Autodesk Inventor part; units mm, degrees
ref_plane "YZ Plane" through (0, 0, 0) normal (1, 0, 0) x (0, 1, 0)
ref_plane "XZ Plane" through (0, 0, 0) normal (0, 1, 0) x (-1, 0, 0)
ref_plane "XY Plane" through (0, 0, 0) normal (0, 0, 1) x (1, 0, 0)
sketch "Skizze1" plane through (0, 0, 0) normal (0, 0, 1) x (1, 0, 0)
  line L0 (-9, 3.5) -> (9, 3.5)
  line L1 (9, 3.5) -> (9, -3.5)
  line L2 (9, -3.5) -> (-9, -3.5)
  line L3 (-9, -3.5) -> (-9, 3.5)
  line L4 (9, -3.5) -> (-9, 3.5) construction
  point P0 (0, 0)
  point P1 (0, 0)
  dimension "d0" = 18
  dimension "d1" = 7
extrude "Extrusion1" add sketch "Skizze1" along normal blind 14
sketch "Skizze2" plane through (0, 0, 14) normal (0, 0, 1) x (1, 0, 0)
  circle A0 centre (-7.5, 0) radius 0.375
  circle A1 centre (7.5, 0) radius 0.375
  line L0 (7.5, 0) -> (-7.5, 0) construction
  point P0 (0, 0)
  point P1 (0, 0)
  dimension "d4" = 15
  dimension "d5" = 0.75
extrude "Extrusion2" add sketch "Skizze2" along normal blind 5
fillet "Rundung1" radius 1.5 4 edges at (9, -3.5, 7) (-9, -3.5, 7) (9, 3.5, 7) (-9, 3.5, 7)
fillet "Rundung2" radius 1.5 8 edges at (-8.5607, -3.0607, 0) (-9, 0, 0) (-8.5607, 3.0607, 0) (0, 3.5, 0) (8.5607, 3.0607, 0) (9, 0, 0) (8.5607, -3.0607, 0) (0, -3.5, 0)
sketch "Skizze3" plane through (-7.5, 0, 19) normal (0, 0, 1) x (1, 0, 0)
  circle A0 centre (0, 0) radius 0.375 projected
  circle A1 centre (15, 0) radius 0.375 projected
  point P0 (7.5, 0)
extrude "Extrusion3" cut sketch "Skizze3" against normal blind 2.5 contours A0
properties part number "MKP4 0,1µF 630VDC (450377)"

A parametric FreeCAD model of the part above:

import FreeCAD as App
import Part
import Sketcher
from FreeCAD import Vector


def edges_at(feature, points):
    """Names of the edges that pass closest to the given points."""
    edges = feature.Shape.Edges
    near = lambda p: min(range(len(edges)), key=lambda i: edges[i].distToShape(Part.Vertex(*p))[0])
    return sorted({f"Edge{near(p) + 1}" for p in points})


def add_polygon(sketch, points):
    """Adds a closed chain of lines whose ends are joined by coincident constraints."""
    first, n = sketch.GeometryCount, len(points)
    for a, b in zip(points, points[1:] + points[:1]):
        sketch.addGeometry(Part.LineSegment(App.Vector(*a, 0), App.Vector(*b, 0)), False)
    for i in range(n):
        sketch.addConstraint(Sketcher.Constraint("Coincident", first + i, 2, first + (i + 1) % n, 1))

doc = App.newDocument("Part")
params = doc.addObject("Spreadsheet::Sheet", "Params")
for row, (alias, value) in enumerate([
    ("sketch1_width", "18 mm"),
    ("sketch1_height", "7 mm"),
    ("pad1_length", "14 mm"),
    ("sketch2_diameter", "0.75 mm"),
    ("pad2_length", "5 mm"),
    ("fillet_radius", "1.5 mm"),
    ("fillet2_radius", "1.5 mm"),
    ("sketch3_diameter", "0.75 mm"),
    ("pocket1_length", "2.5 mm"),
], start=1):
    params.set(f"A{row}", alias)
    params.set(f"B{row}", "=" + value)
    params.setAlias(f"B{row}", alias)

body = doc.addObject("PartDesign::Body", "Body")

# Sketch on XY plane
sketch1 = body.newObject("Sketcher::SketchObject", "Sketch")
sketch1.AttachmentSupport = (doc.getObject("XY_Plane"), [""])
sketch1.MapMode = "FlatFace"
add_polygon(sketch1, [(9, 3.5), (-9, 3.5), (-9, -3.5), (9, -3.5)])  # lines 0-3
sketch1.addConstraint(Sketcher.Constraint("Horizontal", 0))
sketch1.addConstraint(Sketcher.Constraint("Vertical", 1))
sketch1.addConstraint(Sketcher.Constraint("Horizontal", 2))
sketch1.addConstraint(Sketcher.Constraint("Vertical", 3))
sketch1.addConstraint(Sketcher.Constraint("Symmetric", 0, 2, 2, 2, -1, 1))
sketch1.addConstraint(Sketcher.Constraint("DistanceX", 0, 2, 0, 1, 18.0))
sketch1.addConstraint(Sketcher.Constraint("DistanceY", 1, 2, 1, 1, 7.0))
sketch1.setExpression("Constraints[9]", "Params.sketch1_width")
sketch1.setExpression("Constraints[10]", "Params.sketch1_height")
pad1 = body.newObject("PartDesign::Pad", "Pad")
pad1.Profile = sketch1
pad1.setExpression("Length", "Params.pad1_length")

# Sketch on XY plane
sketch2 = body.newObject("Sketcher::SketchObject", "Sketch001")
sketch2.AttachmentSupport = (doc.getObject("XY_Plane"), [""])
sketch2.MapMode = "FlatFace"
sketch2.AttachmentOffset = App.Placement(Vector(0, 0, 14), App.Rotation())
sketch2.addGeometry(Part.Circle(Vector(-7.5, 0, 0), Vector(0, 0, 1), 0.375), False)
sketch2.addGeometry(Part.Circle(Vector(7.5, 0, 0), Vector(0, 0, 1), 0.375), False)
sketch2.addConstraint(Sketcher.Constraint("Equal", 0, 1))
sketch2.addConstraint(Sketcher.Constraint("Symmetric", 0, 3, 1, 3, -1, 1))
sketch2.addConstraint(Sketcher.Constraint("PointOnObject", 0, 3, -1))
sketch2.addConstraint(Sketcher.Constraint("Diameter", 0, 0.75))
sketch2.addConstraint(Sketcher.Constraint("DistanceX", 0, 3, 1, 3, 15.0))
sketch2.setExpression("Constraints[3]", "Params.sketch2_diameter")
pad2 = body.newObject("PartDesign::Pad", "Pad001")
pad2.Profile = sketch2
pad2.setExpression("Length", "Params.pad2_length")
doc.recompute()

fillet = body.newObject("PartDesign::Fillet", "Fillet")
fillet.Base = (pad2, edges_at(pad2, [
    (9, -3.5, 7),
    (-9, -3.5, 7),
    (9, 3.5, 7),
    (-9, 3.5, 7),
]))
fillet.setExpression("Radius", "Params.fillet_radius")
doc.recompute()

fillet2 = body.newObject("PartDesign::Fillet", "Fillet001")
fillet2.Base = (fillet, edges_at(fillet, [
    (-8.561, -3.061, 0),
    (-9, 0, 0),
    (-8.561, 3.061, 0),
    (0, 3.5, 0),
    (8.561, 3.061, 0),
    (9, 0, 0),
    (8.561, -3.061, 0),
    (0, -3.5, 0),
]))
fillet2.setExpression("Radius", "Params.fillet2_radius")

# Sketch on XY plane
sketch3 = body.newObject("Sketcher::SketchObject", "Sketch002")
sketch3.AttachmentSupport = (doc.getObject("XY_Plane"), [""])
sketch3.MapMode = "FlatFace"
sketch3.AttachmentOffset = App.Placement(Vector(0, 0, 19), App.Rotation())
sketch3.addGeometry(Part.Circle(Vector(-7.5, 0, 0), Vector(0, 0, 1), 0.375), False)
sketch3.addConstraint(Sketcher.Constraint("PointOnObject", 0, 3, -1))
sketch3.addConstraint(Sketcher.Constraint("Diameter", 0, 0.75))
sketch3.addConstraint(Sketcher.Constraint("DistanceX", 0, 3, -1, 1, 7.5))
sketch3.setExpression("Constraints[1]", "Params.sketch3_diameter")
pocket1 = body.newObject("PartDesign::Pocket", "Pocket")
pocket1.Profile = sketch3
pocket1.setExpression("Length", "Params.pocket1_length")

doc.recompute()
